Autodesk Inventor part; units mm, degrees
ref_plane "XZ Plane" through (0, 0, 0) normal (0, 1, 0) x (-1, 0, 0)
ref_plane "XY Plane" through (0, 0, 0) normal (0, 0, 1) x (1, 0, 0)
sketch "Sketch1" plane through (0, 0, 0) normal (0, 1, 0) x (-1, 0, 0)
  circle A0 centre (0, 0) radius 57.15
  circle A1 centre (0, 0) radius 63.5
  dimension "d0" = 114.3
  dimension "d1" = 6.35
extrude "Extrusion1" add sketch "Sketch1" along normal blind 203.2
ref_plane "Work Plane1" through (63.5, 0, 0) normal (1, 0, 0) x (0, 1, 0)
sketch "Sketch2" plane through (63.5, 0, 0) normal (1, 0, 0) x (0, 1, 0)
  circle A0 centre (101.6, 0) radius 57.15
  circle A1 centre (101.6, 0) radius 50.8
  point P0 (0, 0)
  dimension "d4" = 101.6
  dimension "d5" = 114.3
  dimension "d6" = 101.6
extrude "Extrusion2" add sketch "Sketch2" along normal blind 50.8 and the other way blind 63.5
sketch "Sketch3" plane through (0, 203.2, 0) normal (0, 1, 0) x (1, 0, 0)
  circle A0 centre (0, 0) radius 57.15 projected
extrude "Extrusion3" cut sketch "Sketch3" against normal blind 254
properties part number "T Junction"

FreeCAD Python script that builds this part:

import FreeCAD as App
import Part
import Sketcher

V = App.Vector
Q = App.Units.Quantity

doc = App.newDocument("Part")
body = doc.addObject("PartDesign::Body", "Body")

sketch1 = body.newObject("Sketcher::SketchObject", "Sketch")
sketch1.AttachmentSupport = (doc.getObject("XZ_Plane"), [""])
sketch1.MapMode = "FlatFace"
sketch1.addGeometry([
    Part.Circle(V(0, 0, 0), V(0, 0, 1), 64),
    Part.Circle(V(0, 0, 0), V(0, 0, 1), 57),
], False)
sketch1.addConstraint([
    Sketcher.Constraint("Coincident", 0, 3, -1, 1),
    Sketcher.Constraint("Coincident", 1, 3, -1, 1),
    Sketcher.Constraint("Diameter", 1, Q("4.5 in")),
    Sketcher.Constraint("Diameter", 0, Q("5 in")),
])
pad1 = body.newObject("PartDesign::Pad", "Pad")
pad1.Profile = sketch1
pad1.Length = Q("8 in")
pad1.Reversed = True

sketch2 = body.newObject("Sketcher::SketchObject", "Sketch001")
sketch2.AttachmentSupport = (doc.getObject("YZ_Plane"), [""])
sketch2.MapMode = "FlatFace"
sketch2.AttachmentOffset = App.Placement(V(0, 0, 2.5 * 25.4), App.Rotation())
sketch2.addGeometry([
    Part.Circle(V(102, 0, 0), V(0, 0, 1), 57),
    Part.Circle(V(102, 0, 0), V(0, 0, 1), 51),
], False)
sketch2.addConstraint([
    Sketcher.Constraint("Coincident", 1, 3, 0, 3),
    Sketcher.Constraint("PointOnObject", 0, 3, -1),
    Sketcher.Constraint("Diameter", 1, Q("4 in")),
    Sketcher.Constraint("Diameter", 0, Q("4.5 in")),
    Sketcher.Constraint("DistanceX", -1, 1, 0, 3, Q("4 in")),
])
pad2 = body.newObject("PartDesign::Pad", "Pad001")
pad2.Profile = sketch2
pad2.Type = "TwoLengths"
pad2.Length = Q("2 in")
pad2.Length2 = Q("2.5 in")

sketch3 = body.newObject("Sketcher::SketchObject", "Sketch002")
sketch3.AttachmentSupport = (doc.getObject("XZ_Plane"), [""])
sketch3.MapMode = "FlatFace"
sketch3.AttachmentOffset = App.Placement(V(0, 0, -8 * 25.4), App.Rotation())
sketch3.addGeometry(Part.Circle(V(0, 0, 0), V(0, 0, 1), 57), False)
sketch3.addConstraint([
    Sketcher.Constraint("Coincident", 0, 3, -1, 1),
    Sketcher.Constraint("Diameter", 0, Q("4.5 in")),
])
pocket1 = body.newObject("PartDesign::Pocket", "Pocket")
pocket1.Profile = sketch3
pocket1.Length = Q("10 in")
pocket1.Reversed = True

doc.recompute()
